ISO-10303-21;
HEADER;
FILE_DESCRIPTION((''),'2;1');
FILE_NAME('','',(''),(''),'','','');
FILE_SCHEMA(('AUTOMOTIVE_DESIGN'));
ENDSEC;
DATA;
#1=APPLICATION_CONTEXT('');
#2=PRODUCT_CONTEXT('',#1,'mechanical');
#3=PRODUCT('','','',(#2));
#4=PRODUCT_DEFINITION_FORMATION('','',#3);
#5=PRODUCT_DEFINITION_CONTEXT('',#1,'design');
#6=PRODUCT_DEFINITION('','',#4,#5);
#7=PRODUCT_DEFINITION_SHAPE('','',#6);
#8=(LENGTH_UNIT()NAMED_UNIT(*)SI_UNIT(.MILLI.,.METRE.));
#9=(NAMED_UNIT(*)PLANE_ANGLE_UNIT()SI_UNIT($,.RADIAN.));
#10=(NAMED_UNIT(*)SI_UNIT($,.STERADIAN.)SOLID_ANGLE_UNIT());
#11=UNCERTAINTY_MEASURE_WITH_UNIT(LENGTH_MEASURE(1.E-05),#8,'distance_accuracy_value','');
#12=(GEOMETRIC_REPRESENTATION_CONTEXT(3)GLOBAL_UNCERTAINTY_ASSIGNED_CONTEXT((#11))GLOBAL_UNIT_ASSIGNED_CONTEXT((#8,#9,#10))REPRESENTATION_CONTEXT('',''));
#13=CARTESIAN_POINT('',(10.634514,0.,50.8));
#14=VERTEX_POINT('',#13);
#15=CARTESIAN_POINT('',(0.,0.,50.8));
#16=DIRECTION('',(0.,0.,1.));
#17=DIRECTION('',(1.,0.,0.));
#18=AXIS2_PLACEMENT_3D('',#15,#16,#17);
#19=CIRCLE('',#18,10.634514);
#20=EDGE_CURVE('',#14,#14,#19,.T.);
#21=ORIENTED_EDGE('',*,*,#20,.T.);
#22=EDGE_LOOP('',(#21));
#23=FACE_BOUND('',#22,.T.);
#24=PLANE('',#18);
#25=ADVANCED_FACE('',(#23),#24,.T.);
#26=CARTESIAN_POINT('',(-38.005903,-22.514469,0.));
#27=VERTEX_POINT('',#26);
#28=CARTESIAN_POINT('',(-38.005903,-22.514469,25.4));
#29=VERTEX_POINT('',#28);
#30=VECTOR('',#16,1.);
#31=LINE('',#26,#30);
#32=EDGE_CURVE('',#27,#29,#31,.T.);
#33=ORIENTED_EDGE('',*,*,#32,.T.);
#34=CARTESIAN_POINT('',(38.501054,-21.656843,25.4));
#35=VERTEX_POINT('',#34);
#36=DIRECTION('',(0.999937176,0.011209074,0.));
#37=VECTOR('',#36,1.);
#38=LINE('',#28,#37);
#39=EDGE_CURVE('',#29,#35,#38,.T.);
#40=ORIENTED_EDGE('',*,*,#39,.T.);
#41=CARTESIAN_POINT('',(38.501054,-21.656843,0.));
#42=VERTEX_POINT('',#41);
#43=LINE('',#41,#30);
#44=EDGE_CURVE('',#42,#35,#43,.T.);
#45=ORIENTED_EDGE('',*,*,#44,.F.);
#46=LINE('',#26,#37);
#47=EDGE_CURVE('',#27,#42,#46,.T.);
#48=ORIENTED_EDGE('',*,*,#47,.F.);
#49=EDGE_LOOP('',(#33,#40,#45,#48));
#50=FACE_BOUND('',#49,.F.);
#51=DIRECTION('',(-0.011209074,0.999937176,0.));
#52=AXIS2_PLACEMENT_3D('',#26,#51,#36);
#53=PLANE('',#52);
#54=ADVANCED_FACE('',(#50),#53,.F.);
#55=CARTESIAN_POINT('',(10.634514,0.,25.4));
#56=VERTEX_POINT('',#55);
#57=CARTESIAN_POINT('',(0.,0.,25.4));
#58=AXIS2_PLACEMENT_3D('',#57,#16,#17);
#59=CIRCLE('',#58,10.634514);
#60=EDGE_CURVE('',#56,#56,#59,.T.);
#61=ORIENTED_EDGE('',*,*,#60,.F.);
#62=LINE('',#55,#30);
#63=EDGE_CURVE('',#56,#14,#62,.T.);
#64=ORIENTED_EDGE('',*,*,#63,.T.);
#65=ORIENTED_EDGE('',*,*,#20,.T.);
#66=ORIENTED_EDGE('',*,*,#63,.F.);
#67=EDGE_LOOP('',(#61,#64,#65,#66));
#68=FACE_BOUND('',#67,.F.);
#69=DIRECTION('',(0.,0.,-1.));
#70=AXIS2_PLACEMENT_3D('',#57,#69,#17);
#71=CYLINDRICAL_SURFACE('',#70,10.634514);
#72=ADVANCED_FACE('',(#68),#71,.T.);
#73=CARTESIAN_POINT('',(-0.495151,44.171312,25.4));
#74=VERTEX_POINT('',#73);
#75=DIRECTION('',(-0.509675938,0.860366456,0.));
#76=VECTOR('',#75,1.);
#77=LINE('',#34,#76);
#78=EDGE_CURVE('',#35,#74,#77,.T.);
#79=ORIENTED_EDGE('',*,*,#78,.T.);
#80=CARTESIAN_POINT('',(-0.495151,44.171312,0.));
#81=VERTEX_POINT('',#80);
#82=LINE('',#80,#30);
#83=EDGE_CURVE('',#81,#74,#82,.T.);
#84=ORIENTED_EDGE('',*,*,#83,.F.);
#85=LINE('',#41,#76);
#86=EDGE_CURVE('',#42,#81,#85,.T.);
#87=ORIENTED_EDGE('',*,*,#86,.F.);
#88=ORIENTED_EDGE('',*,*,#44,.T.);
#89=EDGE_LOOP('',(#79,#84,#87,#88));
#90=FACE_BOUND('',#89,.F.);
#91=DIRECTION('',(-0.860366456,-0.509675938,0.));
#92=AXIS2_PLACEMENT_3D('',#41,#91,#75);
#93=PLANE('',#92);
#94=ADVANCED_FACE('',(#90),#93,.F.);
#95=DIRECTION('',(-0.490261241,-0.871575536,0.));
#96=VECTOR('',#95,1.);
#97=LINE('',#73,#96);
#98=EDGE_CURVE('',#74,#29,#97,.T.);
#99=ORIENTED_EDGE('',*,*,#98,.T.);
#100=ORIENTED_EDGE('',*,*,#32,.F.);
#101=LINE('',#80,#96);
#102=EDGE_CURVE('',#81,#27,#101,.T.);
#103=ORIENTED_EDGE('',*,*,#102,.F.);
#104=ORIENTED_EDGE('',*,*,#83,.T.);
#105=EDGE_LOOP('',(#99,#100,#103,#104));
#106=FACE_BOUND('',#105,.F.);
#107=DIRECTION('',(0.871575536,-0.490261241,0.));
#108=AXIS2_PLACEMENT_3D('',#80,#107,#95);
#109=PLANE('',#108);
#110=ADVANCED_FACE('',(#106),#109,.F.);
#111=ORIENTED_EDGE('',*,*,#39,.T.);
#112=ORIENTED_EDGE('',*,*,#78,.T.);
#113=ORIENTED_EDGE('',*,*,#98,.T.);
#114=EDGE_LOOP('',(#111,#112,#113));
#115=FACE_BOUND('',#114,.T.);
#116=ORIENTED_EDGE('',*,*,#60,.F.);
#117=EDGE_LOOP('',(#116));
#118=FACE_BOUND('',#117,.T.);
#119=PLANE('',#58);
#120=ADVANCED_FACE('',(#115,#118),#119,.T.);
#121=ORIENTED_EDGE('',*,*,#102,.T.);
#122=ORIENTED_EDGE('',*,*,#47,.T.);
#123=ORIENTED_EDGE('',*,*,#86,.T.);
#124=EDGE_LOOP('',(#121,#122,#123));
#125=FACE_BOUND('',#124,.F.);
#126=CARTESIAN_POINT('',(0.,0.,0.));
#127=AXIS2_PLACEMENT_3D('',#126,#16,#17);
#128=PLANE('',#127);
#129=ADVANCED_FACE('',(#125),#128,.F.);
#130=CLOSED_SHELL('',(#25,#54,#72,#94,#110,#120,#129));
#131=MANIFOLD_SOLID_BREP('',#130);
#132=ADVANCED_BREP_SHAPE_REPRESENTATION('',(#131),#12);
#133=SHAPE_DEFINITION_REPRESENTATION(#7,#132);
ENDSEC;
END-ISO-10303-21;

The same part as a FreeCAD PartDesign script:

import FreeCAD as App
import Part
import Sketcher
from FreeCAD import Vector
Q = App.Units.Quantity


def add_polygon(sketch, points):
    """Adds a closed chain of lines whose ends are joined by coincident constraints."""
    first, n = sketch.GeometryCount, len(points)
    for a, b in zip(points, points[1:] + points[:1]):
        sketch.addGeometry(Part.LineSegment(App.Vector(*a, 0), App.Vector(*b, 0)), False)
    for i in range(n):
        sketch.addConstraint(Sketcher.Constraint("Coincident", first + i, 2, first + (i + 1) % n, 1))

doc = App.newDocument("Part")
body = doc.addObject("PartDesign::Body", "Body")

sketch1 = doc.addObject("Sketcher::SketchObject", "Sketch")
body.addObject(sketch1)
sketch1.AttachmentSupport = (doc.XY_Plane, [""])
sketch1.MapMode = "FlatFace"
add_polygon(sketch1, [(0, 44), (-38, -23), (39, -22)])
sketch1.addConstraint(Sketcher.Constraint("Equal", 0, 1))
sketch1.addConstraint(Sketcher.Constraint("Equal", 1, 2))
sketch1.addConstraint(Sketcher.Constraint("DistanceY", 0, 2, -1, 1, 22.514469))
sketch1.addConstraint(Sketcher.Constraint("DistanceX", 2, 2, -1, 1, 0.495151))
sketch1.addConstraint(Sketcher.Constraint("DistanceY", 0, 2, 2, 2, 66.685781))
sketch1.addConstraint(Sketcher.Constraint("Distance", 0, 76.511763))
pad1 = doc.addObject("PartDesign::Pad", "Pad")
body.addObject(pad1)
pad1.Profile = sketch1
pad1.Length = Q("1 in")

sketch2 = doc.addObject("Sketcher::SketchObject", "Sketch001")
body.addObject(sketch2)
sketch2.AttachmentSupport = (doc.XY_Plane, [""])
sketch2.MapMode = "FlatFace"
sketch2.AttachmentOffset = App.Placement(Vector(0, 0, 1 * 25.4), App.Rotation())
sketch2.addGeometry(Part.Circle(Vector(0, 0, 0), Vector(0, 0, 1), 11), False)
sketch2.addConstraint(Sketcher.Constraint("Coincident", 0, 3, -1, 1))
sketch2.addConstraint(Sketcher.Constraint("Diameter", 0, 21.269028))
pad2 = doc.addObject("PartDesign::Pad", "Pad001")
body.addObject(pad2)
pad2.Profile = sketch2
pad2.Length = Q("1 in")

sketch3 = doc.addObject("Sketcher::SketchObject", "Sketch002")
body.addObject(sketch3)
sketch3.AttachmentSupport = (doc.XY_Plane, [""])
sketch3.MapMode = "FlatFace"
sketch3.AttachmentOffset = App.Placement(Vector(0, 0, 2 * 25.4), App.Rotation())
sketch3.addGeometry(Part.Circle(Vector(0, 0, 0), Vector(0, 0, 1), 5), False)
sketch3.addConstraint(Sketcher.Constraint("Coincident", 0, 3, -1, 1))
sketch3.addConstraint(Sketcher.Constraint("Diameter", 0, 10.384866))
pad3 = doc.addObject("PartDesign::Pad", "Pad002")
body.addObject(pad3)
pad3.Profile = sketch3
pad3.Length = Q("2 in")
pad3.Reversed = True

doc.recompute()
